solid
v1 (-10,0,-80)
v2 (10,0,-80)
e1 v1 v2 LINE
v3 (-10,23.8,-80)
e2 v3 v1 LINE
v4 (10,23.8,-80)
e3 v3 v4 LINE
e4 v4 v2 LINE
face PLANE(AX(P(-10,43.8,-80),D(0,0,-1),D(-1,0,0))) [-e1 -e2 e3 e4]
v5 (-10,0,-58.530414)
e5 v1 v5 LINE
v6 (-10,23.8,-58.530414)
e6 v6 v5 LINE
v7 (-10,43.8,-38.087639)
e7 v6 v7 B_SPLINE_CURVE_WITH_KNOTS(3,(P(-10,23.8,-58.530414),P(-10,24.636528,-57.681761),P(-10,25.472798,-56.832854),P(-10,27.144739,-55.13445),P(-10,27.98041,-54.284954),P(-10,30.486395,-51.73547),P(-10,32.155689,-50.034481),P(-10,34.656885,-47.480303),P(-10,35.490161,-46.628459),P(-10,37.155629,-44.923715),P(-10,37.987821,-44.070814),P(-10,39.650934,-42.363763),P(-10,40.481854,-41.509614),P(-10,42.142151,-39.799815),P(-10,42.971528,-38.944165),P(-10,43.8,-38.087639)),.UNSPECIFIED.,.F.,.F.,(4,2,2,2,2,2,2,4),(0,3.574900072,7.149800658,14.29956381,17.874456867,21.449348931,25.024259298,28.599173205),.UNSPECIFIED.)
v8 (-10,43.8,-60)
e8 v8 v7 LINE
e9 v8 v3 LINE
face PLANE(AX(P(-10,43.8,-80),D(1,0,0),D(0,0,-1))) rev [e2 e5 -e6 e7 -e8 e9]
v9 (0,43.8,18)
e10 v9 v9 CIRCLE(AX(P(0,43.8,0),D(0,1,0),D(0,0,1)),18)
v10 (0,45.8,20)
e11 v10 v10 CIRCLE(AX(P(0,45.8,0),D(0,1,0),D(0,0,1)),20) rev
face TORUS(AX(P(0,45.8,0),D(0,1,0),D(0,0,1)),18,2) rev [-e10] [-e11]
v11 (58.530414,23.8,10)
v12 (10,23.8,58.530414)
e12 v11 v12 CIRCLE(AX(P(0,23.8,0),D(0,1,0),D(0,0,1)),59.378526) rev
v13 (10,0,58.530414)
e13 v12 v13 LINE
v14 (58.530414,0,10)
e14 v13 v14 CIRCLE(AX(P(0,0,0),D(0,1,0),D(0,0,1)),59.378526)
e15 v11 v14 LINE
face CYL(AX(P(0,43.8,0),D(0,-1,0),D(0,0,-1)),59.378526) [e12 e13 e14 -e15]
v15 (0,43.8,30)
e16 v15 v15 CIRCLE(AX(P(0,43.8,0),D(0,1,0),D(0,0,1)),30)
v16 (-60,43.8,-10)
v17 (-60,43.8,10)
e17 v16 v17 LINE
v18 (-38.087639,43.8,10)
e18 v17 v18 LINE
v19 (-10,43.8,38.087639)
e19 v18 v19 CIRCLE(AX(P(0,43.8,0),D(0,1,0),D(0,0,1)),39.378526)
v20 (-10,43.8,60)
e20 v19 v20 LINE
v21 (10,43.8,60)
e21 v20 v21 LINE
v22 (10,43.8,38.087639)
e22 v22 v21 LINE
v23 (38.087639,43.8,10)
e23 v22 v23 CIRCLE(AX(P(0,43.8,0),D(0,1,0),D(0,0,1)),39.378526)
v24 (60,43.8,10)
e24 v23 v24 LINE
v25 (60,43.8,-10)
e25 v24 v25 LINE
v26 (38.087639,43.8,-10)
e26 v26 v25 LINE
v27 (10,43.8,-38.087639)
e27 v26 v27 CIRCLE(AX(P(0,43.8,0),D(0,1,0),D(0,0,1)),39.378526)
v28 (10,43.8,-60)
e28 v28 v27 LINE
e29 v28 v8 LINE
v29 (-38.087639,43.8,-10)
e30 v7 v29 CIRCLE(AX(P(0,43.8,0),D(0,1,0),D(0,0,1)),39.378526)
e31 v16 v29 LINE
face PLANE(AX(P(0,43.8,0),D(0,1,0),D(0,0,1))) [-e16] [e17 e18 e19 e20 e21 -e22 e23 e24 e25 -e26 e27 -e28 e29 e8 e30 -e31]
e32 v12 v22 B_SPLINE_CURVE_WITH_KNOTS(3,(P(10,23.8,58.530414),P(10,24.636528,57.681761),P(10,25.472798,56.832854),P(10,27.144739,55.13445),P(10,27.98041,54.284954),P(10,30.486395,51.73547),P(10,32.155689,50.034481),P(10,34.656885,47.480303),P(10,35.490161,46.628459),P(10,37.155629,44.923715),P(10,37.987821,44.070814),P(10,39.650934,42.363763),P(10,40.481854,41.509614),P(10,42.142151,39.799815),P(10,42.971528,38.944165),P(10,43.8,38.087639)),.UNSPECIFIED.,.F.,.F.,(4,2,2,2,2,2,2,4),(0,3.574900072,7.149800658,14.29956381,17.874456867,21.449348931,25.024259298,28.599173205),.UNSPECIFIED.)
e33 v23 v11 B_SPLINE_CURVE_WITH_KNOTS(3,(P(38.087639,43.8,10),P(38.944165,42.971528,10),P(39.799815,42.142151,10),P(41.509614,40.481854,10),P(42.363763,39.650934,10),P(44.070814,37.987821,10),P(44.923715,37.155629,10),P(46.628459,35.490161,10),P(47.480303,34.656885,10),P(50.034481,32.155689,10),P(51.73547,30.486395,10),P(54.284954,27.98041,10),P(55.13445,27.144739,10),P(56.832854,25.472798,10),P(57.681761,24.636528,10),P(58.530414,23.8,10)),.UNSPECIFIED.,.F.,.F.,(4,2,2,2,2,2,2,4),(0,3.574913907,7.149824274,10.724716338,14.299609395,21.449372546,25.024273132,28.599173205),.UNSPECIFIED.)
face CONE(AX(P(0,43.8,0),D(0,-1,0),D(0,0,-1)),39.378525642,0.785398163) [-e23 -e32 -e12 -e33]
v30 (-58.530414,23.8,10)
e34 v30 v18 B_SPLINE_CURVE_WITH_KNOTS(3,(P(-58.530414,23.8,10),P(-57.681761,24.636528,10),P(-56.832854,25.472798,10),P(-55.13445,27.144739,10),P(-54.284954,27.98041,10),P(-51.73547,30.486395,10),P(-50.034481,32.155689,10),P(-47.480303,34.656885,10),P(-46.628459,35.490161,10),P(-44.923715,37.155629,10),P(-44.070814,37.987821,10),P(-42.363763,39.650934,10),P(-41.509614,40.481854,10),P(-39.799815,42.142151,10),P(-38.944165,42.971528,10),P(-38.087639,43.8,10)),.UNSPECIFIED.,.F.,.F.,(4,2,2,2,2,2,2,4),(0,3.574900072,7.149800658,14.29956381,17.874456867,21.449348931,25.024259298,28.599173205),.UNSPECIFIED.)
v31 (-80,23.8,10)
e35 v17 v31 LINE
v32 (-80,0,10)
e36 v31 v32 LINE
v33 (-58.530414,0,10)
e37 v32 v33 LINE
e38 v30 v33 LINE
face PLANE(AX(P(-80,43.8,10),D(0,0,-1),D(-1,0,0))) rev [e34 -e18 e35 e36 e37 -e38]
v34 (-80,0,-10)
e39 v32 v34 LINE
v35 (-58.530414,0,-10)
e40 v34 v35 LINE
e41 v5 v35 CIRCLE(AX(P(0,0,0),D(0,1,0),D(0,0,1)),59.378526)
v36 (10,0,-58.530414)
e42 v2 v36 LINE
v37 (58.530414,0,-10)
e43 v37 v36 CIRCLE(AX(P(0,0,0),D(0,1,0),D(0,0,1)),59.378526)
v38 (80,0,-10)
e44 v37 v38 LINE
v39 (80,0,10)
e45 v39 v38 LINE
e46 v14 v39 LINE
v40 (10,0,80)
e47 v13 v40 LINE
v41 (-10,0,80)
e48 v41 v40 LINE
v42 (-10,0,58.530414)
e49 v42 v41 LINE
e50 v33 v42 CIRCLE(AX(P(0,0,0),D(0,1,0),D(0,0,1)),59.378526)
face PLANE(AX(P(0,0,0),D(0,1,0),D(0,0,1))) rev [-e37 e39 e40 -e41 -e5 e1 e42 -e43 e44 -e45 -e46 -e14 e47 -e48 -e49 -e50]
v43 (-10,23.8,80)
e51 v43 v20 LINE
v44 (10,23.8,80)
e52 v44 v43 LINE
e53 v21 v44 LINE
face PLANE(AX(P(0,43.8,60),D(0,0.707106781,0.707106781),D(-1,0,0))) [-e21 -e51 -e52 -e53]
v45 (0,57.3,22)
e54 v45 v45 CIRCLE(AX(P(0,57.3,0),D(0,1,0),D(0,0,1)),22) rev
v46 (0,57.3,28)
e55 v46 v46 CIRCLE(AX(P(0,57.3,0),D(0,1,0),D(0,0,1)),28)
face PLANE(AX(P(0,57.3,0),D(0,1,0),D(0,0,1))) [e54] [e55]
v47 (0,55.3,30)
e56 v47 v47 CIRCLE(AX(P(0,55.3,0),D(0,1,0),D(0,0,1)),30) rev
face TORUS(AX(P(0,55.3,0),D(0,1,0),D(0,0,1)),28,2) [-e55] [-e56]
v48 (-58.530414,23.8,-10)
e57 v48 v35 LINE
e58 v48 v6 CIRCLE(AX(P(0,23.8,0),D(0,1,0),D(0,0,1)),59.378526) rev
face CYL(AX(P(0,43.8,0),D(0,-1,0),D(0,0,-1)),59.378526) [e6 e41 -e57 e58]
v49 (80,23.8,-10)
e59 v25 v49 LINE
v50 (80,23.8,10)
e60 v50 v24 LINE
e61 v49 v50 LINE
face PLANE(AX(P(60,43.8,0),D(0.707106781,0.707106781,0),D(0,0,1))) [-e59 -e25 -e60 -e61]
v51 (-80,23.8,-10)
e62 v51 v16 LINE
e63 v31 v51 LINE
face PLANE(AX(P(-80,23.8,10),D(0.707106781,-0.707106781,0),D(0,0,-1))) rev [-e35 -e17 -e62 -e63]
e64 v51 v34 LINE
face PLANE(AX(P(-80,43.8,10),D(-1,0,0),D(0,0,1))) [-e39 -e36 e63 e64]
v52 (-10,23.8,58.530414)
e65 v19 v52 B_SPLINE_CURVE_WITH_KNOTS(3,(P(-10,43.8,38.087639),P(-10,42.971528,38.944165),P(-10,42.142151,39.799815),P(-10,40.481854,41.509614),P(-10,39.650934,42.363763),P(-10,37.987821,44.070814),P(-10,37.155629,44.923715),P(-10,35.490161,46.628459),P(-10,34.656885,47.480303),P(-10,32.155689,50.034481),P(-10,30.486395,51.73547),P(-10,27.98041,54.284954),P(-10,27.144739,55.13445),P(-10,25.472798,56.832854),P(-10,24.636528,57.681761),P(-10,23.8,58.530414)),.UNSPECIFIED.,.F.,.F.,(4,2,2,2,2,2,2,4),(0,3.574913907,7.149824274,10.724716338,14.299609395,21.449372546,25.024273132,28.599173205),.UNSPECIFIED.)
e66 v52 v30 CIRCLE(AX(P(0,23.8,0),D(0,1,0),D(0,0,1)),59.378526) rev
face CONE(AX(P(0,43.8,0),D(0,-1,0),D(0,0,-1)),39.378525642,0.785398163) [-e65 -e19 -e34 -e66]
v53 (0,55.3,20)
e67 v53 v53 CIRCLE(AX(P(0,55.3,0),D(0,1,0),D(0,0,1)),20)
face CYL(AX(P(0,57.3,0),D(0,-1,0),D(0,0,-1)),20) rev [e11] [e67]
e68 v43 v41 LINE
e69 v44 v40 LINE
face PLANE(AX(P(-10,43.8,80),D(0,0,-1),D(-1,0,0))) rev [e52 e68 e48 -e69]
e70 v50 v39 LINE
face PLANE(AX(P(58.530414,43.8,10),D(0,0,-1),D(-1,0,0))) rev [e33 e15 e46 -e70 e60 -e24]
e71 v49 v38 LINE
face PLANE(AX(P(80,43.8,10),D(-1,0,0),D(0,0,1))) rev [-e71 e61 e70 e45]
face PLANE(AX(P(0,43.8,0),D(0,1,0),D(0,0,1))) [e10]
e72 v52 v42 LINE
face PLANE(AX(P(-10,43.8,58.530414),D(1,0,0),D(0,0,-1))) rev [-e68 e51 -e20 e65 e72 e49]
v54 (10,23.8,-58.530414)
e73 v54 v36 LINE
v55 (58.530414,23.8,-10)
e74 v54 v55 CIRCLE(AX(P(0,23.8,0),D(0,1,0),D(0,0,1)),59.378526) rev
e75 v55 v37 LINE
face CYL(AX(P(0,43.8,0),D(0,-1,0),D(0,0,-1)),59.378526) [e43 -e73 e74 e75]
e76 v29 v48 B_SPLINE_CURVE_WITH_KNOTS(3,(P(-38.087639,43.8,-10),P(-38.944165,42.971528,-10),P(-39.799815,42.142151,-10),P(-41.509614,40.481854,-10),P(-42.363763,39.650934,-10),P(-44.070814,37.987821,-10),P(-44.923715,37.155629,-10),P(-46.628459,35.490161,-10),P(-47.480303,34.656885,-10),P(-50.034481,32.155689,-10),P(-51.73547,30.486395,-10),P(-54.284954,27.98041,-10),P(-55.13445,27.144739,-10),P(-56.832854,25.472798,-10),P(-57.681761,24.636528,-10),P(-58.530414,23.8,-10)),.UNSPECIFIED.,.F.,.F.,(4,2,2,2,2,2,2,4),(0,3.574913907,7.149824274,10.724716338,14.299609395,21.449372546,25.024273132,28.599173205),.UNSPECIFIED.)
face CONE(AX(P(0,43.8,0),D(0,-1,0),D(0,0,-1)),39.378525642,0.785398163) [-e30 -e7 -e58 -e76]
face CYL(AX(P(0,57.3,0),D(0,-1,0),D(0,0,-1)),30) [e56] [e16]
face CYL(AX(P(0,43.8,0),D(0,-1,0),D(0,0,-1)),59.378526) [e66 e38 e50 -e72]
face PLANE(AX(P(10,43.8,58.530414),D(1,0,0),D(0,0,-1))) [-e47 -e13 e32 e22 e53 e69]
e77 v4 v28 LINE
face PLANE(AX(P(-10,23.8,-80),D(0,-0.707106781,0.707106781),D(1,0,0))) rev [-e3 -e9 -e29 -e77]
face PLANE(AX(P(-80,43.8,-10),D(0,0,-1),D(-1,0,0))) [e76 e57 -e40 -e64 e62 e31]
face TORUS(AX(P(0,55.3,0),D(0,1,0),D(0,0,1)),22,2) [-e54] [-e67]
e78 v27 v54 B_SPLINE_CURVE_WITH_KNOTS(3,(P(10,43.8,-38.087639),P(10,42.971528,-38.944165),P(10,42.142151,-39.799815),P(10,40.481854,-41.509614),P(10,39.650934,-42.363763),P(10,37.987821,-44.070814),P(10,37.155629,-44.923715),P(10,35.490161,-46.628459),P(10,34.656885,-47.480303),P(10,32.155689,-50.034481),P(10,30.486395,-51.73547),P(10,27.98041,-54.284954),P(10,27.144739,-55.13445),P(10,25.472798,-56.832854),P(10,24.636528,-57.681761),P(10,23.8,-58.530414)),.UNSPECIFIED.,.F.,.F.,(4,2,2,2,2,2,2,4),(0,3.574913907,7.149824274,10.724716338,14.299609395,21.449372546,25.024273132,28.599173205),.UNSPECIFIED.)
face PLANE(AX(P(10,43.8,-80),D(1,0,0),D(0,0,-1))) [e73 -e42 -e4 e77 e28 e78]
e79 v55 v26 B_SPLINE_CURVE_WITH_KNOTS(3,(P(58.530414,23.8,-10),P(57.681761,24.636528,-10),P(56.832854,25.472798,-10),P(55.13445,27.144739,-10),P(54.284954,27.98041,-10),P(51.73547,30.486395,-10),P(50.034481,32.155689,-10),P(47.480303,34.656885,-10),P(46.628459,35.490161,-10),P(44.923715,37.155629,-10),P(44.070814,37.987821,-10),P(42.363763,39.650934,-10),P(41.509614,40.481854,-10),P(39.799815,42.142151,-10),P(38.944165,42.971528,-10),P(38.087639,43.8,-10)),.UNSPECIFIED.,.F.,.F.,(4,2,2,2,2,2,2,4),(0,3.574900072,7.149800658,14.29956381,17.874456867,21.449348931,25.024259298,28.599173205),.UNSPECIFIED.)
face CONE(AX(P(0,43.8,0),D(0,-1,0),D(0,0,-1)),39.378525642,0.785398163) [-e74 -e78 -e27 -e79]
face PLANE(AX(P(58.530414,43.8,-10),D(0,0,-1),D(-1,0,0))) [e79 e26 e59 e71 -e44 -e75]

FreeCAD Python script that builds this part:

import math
import FreeCAD as App
import Part
import Sketcher

V = App.Vector
Q = App.Units.Quantity


def edges_at(feature, points):
    """Names of the edges that pass closest to the given points."""
    edges = feature.Shape.Edges
    near = lambda p: min(range(len(edges)), key=lambda i: edges[i].distToShape(Part.Vertex(*p))[0])
    return sorted({f"Edge{near(p) + 1}" for p in points})

doc = App.newDocument("Part")
body = doc.addObject("PartDesign::Body", "Body")

sketch1 = body.newObject("Sketcher::SketchObject", "Sketch")
sketch1.AttachmentSupport = (doc.getObject("XZ_Plane"), [""])
sketch1.MapMode = "FlatFace"
sketch1.addGeometry([
    Part.LineSegment(V(-10, 59, 0), V(-10, 80, 0)),
    Part.LineSegment(V(-10, 80, 0), V(10, 80, 0)),
    Part.LineSegment(V(10, 80, 0), V(10, 59, 0)),
    Part.ArcOfCircle(Part.Circle(V(0, 0, 0), V(0, 0, 1), 59), math.radians(10), math.radians(80)),
    Part.LineSegment(V(59, 10, 0), V(80, 10, 0)),
    Part.LineSegment(V(80, 10, 0), V(80, -10, 0)),
    Part.LineSegment(V(80, -10, 0), V(59, -10, 0)),
    Part.ArcOfCircle(Part.Circle(V(0, 0, 0), V(0, 0, 1), 59), math.radians(-80), math.radians(-10)),
    Part.LineSegment(V(10, -59, 0), V(10, -80, 0)),
    Part.LineSegment(V(10, -80, 0), V(-10, -80, 0)),
    Part.LineSegment(V(-10, -80, 0), V(-10, -59, 0)),
    Part.ArcOfCircle(Part.Circle(V(0, 0, 0), V(0, 0, 1), 59), math.radians(-170), math.radians(-100)),
    Part.LineSegment(V(-59, -10, 0), V(-80, -10, 0)),
    Part.LineSegment(V(-80, -10, 0), V(-80, 10, 0)),
    Part.LineSegment(V(-80, 10, 0), V(-59, 10, 0)),
    Part.ArcOfCircle(Part.Circle(V(0, 0, 0), V(0, 0, 1), 59), math.radians(100), math.radians(170)),
], False)
sketch1.addConstraint([
    Sketcher.Constraint("Coincident", 0, 2, 1, 1),
    Sketcher.Constraint("Coincident", 1, 2, 2, 1),
    Sketcher.Constraint("Coincident", 2, 2, 3, 2),
    Sketcher.Constraint("Coincident", 3, 1, 4, 1),
    Sketcher.Constraint("Coincident", 4, 2, 5, 1),
    Sketcher.Constraint("Coincident", 5, 2, 6, 1),
    Sketcher.Constraint("Coincident", 6, 2, 7, 2),
    Sketcher.Constraint("Coincident", 7, 1, 8, 1),
    Sketcher.Constraint("Coincident", 8, 2, 9, 1),
    Sketcher.Constraint("Coincident", 9, 2, 10, 1),
    Sketcher.Constraint("Coincident", 10, 2, 11, 2),
    Sketcher.Constraint("Coincident", 11, 1, 12, 1),
    Sketcher.Constraint("Coincident", 12, 2, 13, 1),
    Sketcher.Constraint("Coincident", 13, 2, 14, 1),
    Sketcher.Constraint("Coincident", 14, 2, 15, 2),
    Sketcher.Constraint("Coincident", 15, 1, 0, 1),
    Sketcher.Constraint("Vertical", 0),
    Sketcher.Constraint("Horizontal", 1),
    Sketcher.Constraint("Vertical", 2),
    Sketcher.Constraint("Horizontal", 4),
    Sketcher.Constraint("Vertical", 5),
    Sketcher.Constraint("Horizontal", 6),
    Sketcher.Constraint("Vertical", 8),
    Sketcher.Constraint("Horizontal", 9),
    Sketcher.Constraint("Vertical", 10),
    Sketcher.Constraint("Horizontal", 12),
    Sketcher.Constraint("Vertical", 13),
    Sketcher.Constraint("Horizontal", 14),
    Sketcher.Constraint("Coincident", 3, 3, -1, 1),
    Sketcher.Constraint("Coincident", 7, 3, -1, 1),
    Sketcher.Constraint("Coincident", 11, 3, -1, 1),
    Sketcher.Constraint("Coincident", 15, 3, -1, 1),
    Sketcher.Constraint("Equal", 3, 7),
    Sketcher.Constraint("Equal", 7, 11),
    Sketcher.Constraint("Equal", 11, 15),
    Sketcher.Constraint("Symmetric", 0, 2, 8, 2, -1, 1),
    Sketcher.Constraint("Symmetric", 4, 2, 12, 2, -1, 1),
    Sketcher.Constraint("Horizontal", 7, 1, 10, 2),
    Sketcher.Constraint("Horizontal", 6, 2, 11, 1),
    Sketcher.Constraint("Horizontal", 4, 2, 13, 2),
    Sketcher.Constraint("Horizontal", 2, 2, 15, 1),
    Sketcher.Constraint("Equal", 14, 0),
    Sketcher.Constraint("Equal", 9, 5),
    Sketcher.Constraint("DistanceX", 1, 1, 1, 2, Q("20 mm")),
    Sketcher.Constraint("DistanceY", -1, 1, 0, 2, Q("80 mm")),
    Sketcher.Constraint("Radius", 3, Q("59.378526 mm")),
])
pad1 = body.newObject("PartDesign::Pad", "Pad")
pad1.Profile = sketch1
pad1.Length = 43.8
pad1.Reversed = True
doc.recompute()

chamfer = body.newObject("PartDesign::Chamfer", "Chamfer")
chamfer.Base = (pad1, edges_at(pad1, [
    (-80, 43.8, 0),
    (-41.987, 43.8, 41.987),
    (0, 43.8, 80),
    (41.987, 43.8, 41.987),
    (80, 43.8, 0),
    (41.987, 43.8, -41.987),
    (0, 43.8, -80),
    (-41.987, 43.8, -41.987),
]))
chamfer.Size = 20

sketch2 = body.newObject("Sketcher::SketchObject", "Sketch001")
sketch2.AttachmentSupport = (doc.getObject("XZ_Plane"), [""])
sketch2.MapMode = "FlatFace"
sketch2.AttachmentOffset = App.Placement(V(0, 0, -43.8), App.Rotation())
sketch2.addGeometry([
    Part.Circle(V(0, 0, 0), V(0, 0, 1), 30),
    Part.Circle(V(0, 0, 0), V(0, 0, 1), 20),
], False)
sketch2.addConstraint([
    Sketcher.Constraint("Coincident", 0, 3, -1, 1),
    Sketcher.Constraint("Coincident", 1, 3, -1, 1),
    Sketcher.Constraint("Diameter", 0, Q("60 mm")),
    Sketcher.Constraint("Diameter", 1, Q("40 mm")),
])
pad2 = body.newObject("PartDesign::Pad", "Pad001")
pad2.Profile = sketch2
pad2.Length = 13.5
pad2.Reversed = True
doc.recompute()

fillet = body.newObject("PartDesign::Fillet", "Fillet")
fillet.Base = (pad2, edges_at(pad2, [(-20, 43.8, 0), (-30, 57.3, 0), (-20, 57.3, 0)]))
fillet.Radius = 2

doc.recompute()
